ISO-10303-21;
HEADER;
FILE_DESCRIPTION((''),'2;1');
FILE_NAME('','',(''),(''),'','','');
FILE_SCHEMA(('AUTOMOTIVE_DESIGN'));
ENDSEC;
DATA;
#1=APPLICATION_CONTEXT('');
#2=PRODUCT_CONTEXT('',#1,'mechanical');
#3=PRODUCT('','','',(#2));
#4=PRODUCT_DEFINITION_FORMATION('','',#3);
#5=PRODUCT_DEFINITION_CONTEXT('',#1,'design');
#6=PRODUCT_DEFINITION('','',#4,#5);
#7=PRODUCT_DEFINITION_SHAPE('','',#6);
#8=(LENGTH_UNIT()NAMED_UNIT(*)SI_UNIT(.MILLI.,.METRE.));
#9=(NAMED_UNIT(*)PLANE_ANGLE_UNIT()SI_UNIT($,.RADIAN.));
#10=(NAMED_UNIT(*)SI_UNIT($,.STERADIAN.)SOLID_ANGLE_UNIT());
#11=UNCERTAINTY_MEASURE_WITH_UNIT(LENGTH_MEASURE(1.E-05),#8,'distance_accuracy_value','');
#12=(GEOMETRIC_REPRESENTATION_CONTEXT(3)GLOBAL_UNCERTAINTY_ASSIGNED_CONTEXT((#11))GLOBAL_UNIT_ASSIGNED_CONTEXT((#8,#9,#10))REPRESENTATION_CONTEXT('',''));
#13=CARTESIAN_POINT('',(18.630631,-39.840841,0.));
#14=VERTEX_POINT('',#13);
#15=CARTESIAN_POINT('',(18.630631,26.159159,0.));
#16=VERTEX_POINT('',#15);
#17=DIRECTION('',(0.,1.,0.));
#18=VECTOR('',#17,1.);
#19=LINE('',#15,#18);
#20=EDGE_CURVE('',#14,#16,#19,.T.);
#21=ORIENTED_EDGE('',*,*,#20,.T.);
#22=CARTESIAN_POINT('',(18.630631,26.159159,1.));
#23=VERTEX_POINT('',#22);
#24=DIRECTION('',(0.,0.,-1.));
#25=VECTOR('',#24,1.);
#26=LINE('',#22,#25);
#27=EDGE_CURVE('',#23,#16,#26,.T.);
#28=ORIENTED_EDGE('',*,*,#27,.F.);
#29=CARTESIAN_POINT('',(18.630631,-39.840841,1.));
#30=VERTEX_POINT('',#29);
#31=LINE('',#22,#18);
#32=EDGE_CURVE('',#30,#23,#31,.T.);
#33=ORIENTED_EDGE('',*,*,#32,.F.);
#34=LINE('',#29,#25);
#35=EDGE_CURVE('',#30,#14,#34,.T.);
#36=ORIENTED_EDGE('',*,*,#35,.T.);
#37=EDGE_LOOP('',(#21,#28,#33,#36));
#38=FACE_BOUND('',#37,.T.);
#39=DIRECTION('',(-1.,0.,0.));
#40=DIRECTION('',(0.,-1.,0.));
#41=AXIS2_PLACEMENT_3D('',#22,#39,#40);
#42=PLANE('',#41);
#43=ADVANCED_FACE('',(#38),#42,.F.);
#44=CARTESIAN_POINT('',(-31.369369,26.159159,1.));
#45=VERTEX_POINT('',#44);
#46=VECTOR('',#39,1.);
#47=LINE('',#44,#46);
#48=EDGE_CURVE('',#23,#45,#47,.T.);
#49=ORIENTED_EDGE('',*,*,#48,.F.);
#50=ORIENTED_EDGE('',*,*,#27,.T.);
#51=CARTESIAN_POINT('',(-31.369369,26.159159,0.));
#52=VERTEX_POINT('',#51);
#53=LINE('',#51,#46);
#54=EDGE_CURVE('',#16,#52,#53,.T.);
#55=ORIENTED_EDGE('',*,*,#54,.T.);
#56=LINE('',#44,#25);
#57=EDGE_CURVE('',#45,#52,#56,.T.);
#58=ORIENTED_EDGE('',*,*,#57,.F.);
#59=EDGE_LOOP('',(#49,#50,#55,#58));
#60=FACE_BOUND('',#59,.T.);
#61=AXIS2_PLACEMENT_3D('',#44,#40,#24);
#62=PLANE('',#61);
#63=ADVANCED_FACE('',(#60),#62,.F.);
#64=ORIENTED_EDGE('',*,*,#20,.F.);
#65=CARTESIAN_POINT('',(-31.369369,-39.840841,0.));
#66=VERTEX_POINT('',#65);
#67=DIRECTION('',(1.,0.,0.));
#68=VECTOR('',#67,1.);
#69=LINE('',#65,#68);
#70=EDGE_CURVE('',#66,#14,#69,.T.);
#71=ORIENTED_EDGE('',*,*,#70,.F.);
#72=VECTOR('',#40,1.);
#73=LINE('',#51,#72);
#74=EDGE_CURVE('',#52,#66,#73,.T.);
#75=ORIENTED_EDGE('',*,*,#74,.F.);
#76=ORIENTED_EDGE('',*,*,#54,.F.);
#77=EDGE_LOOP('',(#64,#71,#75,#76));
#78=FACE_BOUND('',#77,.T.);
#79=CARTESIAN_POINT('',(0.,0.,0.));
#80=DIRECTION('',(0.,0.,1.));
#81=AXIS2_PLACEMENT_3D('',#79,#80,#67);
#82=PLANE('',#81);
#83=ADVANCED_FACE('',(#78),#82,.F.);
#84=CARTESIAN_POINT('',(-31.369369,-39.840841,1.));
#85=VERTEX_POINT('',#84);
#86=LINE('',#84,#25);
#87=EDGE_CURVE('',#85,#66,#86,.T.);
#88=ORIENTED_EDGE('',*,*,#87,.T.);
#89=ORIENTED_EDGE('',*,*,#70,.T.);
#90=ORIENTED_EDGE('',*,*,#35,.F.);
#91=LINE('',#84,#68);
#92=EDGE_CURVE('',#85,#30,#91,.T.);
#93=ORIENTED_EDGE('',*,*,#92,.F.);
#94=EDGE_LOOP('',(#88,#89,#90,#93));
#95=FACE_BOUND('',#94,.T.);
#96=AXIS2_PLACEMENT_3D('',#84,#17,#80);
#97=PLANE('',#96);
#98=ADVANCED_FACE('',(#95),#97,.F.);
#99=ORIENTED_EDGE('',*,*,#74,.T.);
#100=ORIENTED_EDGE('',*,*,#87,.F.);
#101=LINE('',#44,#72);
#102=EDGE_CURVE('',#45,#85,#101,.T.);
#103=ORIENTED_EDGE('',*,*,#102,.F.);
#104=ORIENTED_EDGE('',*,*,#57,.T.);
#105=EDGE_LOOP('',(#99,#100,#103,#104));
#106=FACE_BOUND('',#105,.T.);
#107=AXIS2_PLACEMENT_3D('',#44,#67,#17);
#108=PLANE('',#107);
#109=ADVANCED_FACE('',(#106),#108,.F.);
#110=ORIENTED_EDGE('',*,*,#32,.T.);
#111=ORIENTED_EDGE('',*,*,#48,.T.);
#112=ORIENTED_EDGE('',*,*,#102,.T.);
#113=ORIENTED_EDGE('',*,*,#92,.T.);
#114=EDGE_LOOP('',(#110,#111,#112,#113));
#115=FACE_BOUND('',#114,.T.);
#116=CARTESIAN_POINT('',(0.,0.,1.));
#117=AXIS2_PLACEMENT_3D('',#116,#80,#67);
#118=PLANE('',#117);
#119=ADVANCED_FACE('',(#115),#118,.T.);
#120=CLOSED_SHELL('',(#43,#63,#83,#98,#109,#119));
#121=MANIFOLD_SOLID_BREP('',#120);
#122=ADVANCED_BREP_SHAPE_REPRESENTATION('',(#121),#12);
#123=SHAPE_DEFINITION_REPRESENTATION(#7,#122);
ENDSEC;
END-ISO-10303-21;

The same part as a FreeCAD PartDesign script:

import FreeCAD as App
import Part
import Sketcher

V = App.Vector
Q = App.Units.Quantity


def add_polygon(sketch, points):
    """Adds a closed chain of lines whose ends are joined by coincident constraints."""
    first, n = sketch.GeometryCount, len(points)
    for a, b in zip(points, points[1:] + points[:1]):
        sketch.addGeometry(Part.LineSegment(App.Vector(*a, 0), App.Vector(*b, 0)), False)
    for i in range(n):
        sketch.addConstraint(Sketcher.Constraint("Coincident", first + i, 2, first + (i + 1) % n, 1))

doc = App.newDocument("Part")
body = doc.addObject("PartDesign::Body", "Body")

sketch1 = doc.addObject("Sketcher::SketchObject", "Sketch")
body.addObject(sketch1)
sketch1.AttachmentSupport = (doc.XY_Plane, [""])
sketch1.MapMode = "FlatFace"
add_polygon(sketch1, [(-31, 26), (-31, -40), (19, -40), (19, 26)])
sketch1.addConstraint(Sketcher.Constraint("Vertical", 0))
sketch1.addConstraint(Sketcher.Constraint("Horizontal", 1))
sketch1.addConstraint(Sketcher.Constraint("Vertical", 2))
sketch1.addConstraint(Sketcher.Constraint("Horizontal", 3))
sketch1.addConstraint(Sketcher.Constraint("DistanceX", 1, 1, 1, 2, Q("50 mm")))
sketch1.addConstraint(Sketcher.Constraint("DistanceY", 0, 2, 0, 1, Q("66 mm")))
sketch1.addConstraint(Sketcher.Constraint("DistanceX", 0, 2, -1, 1, Q("31.369369 mm")))
sketch1.addConstraint(Sketcher.Constraint("DistanceY", 0, 2, -1, 1, Q("39.840841 mm")))
pad1 = doc.addObject("PartDesign::Pad", "Pad")
body.addObject(pad1)
pad1.Profile = sketch1
pad1.Length = 1

doc.recompute()
